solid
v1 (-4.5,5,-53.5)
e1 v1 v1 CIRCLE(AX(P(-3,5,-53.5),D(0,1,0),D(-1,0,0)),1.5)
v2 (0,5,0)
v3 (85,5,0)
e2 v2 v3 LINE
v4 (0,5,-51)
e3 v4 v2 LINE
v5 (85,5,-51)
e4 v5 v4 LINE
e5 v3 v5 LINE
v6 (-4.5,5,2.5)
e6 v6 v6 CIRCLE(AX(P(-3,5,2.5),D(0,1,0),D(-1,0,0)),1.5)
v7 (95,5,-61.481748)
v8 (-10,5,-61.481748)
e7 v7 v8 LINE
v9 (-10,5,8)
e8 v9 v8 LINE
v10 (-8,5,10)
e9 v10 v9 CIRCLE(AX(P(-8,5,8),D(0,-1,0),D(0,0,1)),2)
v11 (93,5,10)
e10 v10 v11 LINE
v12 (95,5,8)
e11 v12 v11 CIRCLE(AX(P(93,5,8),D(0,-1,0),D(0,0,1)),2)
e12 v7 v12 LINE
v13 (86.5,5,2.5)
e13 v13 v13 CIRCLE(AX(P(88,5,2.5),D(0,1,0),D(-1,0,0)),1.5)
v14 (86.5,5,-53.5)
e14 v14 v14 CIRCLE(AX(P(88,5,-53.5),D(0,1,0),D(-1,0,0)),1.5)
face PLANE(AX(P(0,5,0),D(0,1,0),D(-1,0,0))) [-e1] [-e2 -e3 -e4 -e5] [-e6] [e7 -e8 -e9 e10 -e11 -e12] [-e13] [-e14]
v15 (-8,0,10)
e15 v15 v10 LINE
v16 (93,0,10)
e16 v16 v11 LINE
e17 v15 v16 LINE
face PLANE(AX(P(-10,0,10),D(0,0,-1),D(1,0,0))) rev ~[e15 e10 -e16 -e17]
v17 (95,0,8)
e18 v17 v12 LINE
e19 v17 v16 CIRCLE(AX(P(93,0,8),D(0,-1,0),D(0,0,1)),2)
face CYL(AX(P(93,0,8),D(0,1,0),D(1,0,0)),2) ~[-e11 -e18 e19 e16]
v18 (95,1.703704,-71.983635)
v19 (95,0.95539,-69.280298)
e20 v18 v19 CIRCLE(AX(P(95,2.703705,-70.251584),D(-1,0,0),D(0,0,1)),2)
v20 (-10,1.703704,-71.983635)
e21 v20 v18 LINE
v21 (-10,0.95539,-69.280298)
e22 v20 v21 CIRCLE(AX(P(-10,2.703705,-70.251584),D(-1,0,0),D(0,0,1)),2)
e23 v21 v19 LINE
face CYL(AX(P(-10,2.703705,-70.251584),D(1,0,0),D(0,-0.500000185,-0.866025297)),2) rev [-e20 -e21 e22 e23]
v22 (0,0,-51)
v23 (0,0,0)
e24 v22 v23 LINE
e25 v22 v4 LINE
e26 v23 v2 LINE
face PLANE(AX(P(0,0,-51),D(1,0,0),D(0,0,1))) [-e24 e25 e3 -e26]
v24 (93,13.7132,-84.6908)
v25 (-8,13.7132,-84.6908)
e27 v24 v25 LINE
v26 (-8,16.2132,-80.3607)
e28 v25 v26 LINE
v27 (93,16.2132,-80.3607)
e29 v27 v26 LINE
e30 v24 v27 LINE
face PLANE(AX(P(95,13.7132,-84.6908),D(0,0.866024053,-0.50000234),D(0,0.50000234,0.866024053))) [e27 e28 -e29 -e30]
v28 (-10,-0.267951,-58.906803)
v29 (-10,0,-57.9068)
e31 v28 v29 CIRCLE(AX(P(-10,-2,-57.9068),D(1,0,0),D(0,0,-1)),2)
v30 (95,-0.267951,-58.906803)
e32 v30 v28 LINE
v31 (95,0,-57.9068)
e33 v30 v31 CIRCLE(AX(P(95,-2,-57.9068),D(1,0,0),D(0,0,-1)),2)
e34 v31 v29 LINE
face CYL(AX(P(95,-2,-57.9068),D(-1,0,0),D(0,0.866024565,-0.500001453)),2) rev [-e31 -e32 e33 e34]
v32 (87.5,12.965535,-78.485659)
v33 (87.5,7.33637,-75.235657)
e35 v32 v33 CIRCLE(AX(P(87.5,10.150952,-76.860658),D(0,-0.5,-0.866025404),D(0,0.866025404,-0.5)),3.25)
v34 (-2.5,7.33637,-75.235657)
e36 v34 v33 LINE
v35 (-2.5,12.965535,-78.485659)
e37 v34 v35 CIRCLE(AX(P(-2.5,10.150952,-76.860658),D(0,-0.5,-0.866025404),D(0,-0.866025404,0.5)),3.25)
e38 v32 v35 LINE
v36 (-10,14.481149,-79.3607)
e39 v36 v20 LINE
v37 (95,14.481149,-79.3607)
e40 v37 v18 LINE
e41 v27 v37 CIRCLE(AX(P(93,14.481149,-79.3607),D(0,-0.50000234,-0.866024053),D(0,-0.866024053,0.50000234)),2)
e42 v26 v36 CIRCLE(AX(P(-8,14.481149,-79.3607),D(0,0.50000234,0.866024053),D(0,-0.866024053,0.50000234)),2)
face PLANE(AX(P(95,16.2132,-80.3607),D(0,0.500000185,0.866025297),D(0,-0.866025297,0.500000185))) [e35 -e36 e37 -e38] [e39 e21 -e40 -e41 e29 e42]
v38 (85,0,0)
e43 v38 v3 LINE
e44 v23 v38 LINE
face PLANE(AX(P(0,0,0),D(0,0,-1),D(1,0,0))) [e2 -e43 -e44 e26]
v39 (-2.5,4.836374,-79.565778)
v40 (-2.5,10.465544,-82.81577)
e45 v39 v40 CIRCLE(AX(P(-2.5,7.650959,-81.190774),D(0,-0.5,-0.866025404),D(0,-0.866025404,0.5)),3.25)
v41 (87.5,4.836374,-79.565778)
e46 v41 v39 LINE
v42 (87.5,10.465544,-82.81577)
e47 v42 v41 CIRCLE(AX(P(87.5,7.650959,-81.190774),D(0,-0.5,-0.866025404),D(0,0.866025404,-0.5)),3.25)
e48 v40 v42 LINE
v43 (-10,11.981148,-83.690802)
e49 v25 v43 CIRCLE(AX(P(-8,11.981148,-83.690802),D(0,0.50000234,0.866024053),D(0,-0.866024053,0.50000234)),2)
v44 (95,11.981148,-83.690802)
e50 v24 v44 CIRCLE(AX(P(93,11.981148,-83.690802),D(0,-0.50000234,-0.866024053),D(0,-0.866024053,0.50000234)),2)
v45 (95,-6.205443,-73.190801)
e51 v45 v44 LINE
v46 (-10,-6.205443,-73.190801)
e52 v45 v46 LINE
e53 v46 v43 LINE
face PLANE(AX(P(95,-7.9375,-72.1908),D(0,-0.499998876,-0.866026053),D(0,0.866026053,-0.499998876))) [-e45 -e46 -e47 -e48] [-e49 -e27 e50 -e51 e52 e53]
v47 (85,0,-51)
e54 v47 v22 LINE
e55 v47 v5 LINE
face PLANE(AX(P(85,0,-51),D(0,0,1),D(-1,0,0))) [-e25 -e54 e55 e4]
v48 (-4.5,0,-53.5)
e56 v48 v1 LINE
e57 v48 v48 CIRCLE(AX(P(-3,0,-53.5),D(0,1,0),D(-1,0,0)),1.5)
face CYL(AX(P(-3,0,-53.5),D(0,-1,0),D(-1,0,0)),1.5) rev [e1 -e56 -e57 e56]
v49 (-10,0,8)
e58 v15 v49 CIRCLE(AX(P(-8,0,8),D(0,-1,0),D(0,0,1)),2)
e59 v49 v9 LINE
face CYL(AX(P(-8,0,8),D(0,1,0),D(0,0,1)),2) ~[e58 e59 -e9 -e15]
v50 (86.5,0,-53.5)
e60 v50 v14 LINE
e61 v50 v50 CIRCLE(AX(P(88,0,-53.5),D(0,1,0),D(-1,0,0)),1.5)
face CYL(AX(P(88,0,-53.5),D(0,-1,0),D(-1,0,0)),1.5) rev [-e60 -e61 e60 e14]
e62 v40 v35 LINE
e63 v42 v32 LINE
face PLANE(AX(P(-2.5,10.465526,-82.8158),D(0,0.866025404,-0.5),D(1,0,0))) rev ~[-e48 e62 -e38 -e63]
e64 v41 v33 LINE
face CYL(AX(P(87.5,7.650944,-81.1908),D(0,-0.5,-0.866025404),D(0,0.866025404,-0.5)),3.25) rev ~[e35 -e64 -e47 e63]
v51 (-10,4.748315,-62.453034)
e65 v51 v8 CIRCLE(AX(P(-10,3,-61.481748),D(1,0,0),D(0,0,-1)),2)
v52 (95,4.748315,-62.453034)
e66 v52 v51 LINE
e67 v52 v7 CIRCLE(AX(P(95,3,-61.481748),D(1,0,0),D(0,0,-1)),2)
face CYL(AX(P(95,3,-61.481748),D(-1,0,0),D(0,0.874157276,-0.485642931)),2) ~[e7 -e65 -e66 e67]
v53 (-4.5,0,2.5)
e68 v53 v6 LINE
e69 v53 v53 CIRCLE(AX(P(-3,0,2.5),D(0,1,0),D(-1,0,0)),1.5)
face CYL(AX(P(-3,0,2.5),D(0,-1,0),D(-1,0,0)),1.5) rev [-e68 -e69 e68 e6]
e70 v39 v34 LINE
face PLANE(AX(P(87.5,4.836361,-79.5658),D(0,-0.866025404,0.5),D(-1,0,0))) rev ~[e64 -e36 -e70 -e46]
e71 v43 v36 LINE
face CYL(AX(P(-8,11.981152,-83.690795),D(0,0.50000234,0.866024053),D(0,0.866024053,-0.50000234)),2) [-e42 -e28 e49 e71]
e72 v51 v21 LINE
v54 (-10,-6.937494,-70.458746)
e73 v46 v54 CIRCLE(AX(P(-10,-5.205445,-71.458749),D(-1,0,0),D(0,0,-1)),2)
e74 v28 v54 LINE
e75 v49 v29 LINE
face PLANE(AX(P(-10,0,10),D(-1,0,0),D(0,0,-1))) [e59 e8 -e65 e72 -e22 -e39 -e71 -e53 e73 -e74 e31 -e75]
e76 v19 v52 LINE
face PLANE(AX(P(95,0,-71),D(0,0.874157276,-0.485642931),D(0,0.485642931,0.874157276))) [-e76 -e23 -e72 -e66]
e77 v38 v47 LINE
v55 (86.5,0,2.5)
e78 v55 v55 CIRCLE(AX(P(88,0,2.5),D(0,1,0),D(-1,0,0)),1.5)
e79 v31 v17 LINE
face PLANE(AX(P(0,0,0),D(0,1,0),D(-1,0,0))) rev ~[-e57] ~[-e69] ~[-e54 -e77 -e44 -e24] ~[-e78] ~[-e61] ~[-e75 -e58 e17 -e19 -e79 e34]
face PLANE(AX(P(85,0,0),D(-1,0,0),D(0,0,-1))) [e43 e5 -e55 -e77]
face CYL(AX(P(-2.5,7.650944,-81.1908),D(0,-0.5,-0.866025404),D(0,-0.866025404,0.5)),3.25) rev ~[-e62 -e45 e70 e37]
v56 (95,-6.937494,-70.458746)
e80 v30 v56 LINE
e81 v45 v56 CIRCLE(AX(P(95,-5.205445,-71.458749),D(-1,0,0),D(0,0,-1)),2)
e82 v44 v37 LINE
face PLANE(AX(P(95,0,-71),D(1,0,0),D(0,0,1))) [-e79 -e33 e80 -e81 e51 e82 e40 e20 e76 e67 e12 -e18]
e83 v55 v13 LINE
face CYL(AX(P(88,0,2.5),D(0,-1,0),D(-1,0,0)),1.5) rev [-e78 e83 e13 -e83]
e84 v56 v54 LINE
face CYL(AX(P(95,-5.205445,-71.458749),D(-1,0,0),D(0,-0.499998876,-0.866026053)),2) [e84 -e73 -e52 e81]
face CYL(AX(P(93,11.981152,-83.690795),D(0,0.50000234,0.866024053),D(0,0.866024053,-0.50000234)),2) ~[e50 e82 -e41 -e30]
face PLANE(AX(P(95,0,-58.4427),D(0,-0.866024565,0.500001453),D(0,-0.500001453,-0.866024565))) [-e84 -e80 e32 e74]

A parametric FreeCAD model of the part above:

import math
import FreeCAD as App
import Part
import Sketcher
from FreeCAD import Vector
Q = App.Units.Quantity


def edges_at(feature, points):
    """Names of the edges that pass closest to the given points."""
    edges = feature.Shape.Edges
    near = lambda p: min(range(len(edges)), key=lambda i: edges[i].distToShape(Part.Vertex(*p))[0])
    return sorted({f"Edge{near(p) + 1}" for p in points})


def add_polygon(sketch, points):
    """Adds a closed chain of lines whose ends are joined by coincident constraints."""
    first, n = sketch.GeometryCount, len(points)
    for a, b in zip(points, points[1:] + points[:1]):
        sketch.addGeometry(Part.LineSegment(App.Vector(*a, 0), App.Vector(*b, 0)), False)
    for i in range(n):
        sketch.addConstraint(Sketcher.Constraint("Coincident", first + i, 2, first + (i + 1) % n, 1))

doc = App.newDocument("Part")
body = doc.addObject("PartDesign::Body", "Body")

sketch1 = body.newObject("Sketcher::SketchObject", "Sketch")
sketch1.AttachmentSupport = (doc.getObject("XZ_Plane"), [""])
sketch1.MapMode = "FlatFace"
add_polygon(sketch1, [(95, -71), (-10, -71), (-10, 10), (95, 10)])
sketch1.addGeometry(Part.Circle(Vector(88, -53.5, 0), Vector(0, 0, 1), 1.5), False)
sketch1.addGeometry(Part.Circle(Vector(-3, -53.5, 0), Vector(0, 0, 1), 1.5), False)
sketch1.addGeometry(Part.Circle(Vector(88, 2.5, 0), Vector(0, 0, 1), 1.5), False)
add_polygon(sketch1, [(85, 0), (0, 0), (0, -51), (85, -51)])
sketch1.addGeometry(Part.Circle(Vector(-3, 2.5, 0), Vector(0, 0, 1), 1.5), False)
sketch1.addConstraint([
    Sketcher.Constraint("Horizontal", 0),
    Sketcher.Constraint("Vertical", 1),
    Sketcher.Constraint("Horizontal", 2),
    Sketcher.Constraint("Vertical", 3),
    Sketcher.Constraint("Horizontal", 7),
    Sketcher.Constraint("Vertical", 8),
    Sketcher.Constraint("Horizontal", 9),
    Sketcher.Constraint("Vertical", 10),
    Sketcher.Constraint("Coincident", 7, 2, -1, 1),
    Sketcher.Constraint("Equal", 4, 5),
    Sketcher.Constraint("Equal", 5, 6),
    Sketcher.Constraint("Equal", 6, 11),
    Sketcher.Constraint("Horizontal", 4, 3, 5, 3),
    Sketcher.Constraint("Horizontal", 6, 3, 11, 3),
    Sketcher.Constraint("Vertical", 4, 3, 6, 3),
    Sketcher.Constraint("Vertical", 5, 3, 11, 3),
    Sketcher.Constraint("Diameter", 4, Q("3 mm")),
    Sketcher.Constraint("DistanceX", 7, 2, 7, 1, Q("85 mm")),
    Sketcher.Constraint("DistanceY", 8, 2, 8, 1, Q("51 mm")),
    Sketcher.Constraint("DistanceX", 5, 3, -1, 1, Q("3 mm")),
    Sketcher.Constraint("DistanceX", 0, 2, -1, 1, Q("10 mm")),
    Sketcher.Constraint("DistanceY", -1, 1, 1, 2, Q("10 mm")),
    Sketcher.Constraint("DistanceY", 0, 2, 8, 2, Q("20 mm")),
    Sketcher.Constraint("DistanceX", 9, 2, 4, 3, Q("3 mm")),
    Sketcher.Constraint("DistanceX", 9, 2, 3, 2, Q("10 mm")),
    Sketcher.Constraint("DistanceY", -1, 1, 6, 3, Q("2.5 mm")),
    Sketcher.Constraint("DistanceY", 5, 3, 8, 2, Q("2.5 mm")),
])
pad1 = body.newObject("PartDesign::Pad", "Pad")
pad1.Profile = sketch1
pad1.Length = 5
pad1.Reversed = True

sketch2 = body.newObject("Sketcher::SketchObject", "Sketch001")
sketch2.AttachmentSupport = (doc.getObject("YZ_Plane"), [""])
sketch2.MapMode = "FlatFace"
sketch2.AttachmentOffset = App.Placement(Vector(0, 0, 95), App.Rotation())
add_polygon(sketch2, [(0, -58.4), (-7.9, -72.2), (13.7, -84.7), (16.2, -80.4), (0, -71)])
sketch2.addConstraint([
    Sketcher.Constraint("Vertical", 4),
    Sketcher.Constraint("PointOnObject", 3, 2, -2),
    Sketcher.Constraint("Perpendicular", 0, 1),
    Sketcher.Constraint("Perpendicular", 1, 2),
    Sketcher.Constraint("Perpendicular", 2, 3),
    Sketcher.Constraint("Angle", 1, Q("-30 deg")),
    Sketcher.Constraint("Distance", 1, Q("25 mm")),
    Sketcher.Constraint("Distance", 2, Q("5 mm")),
    Sketcher.Constraint("DistanceY", 3, 2, -1, 1, Q("71 mm")),
    Sketcher.Constraint("Distance", 0, Q("15.875 mm")),
])
pad2 = body.newObject("PartDesign::Pad", "Pad001")
pad2.Profile = sketch2
pad2.Length = 105
pad2.Reversed = True

sketch3 = body.newObject("Sketcher::SketchObject", "Sketch002")
sketch3.Placement = App.Placement(Vector(95, -32.5167, -58), App.Rotation(Vector(-1, 0, 0), Vector(0, 0.866025404, -0.5), Vector(0, -0.5, -0.866025404), "ZXY"))
sketch3.addGeometry([
    Part.ArcOfCircle(Part.Circle(Vector(7.5, 46.4, 0), Vector(0, 0, 1), 3.2), math.radians(90), math.radians(270)),
    Part.LineSegment(Vector(7.5, 43.1, 0), Vector(97.5, 43.1, 0)),
    Part.ArcOfCircle(Part.Circle(Vector(97.5, 46.4, 0), Vector(0, 0, 1), 3.2), math.radians(-90), math.radians(90)),
    Part.LineSegment(Vector(97.5, 49.6, 0), Vector(7.5, 49.6, 0)),
], False)
sketch3.addConstraint([
    Sketcher.Constraint("Tangent", 0, 2, 1, 1),
    Sketcher.Constraint("Tangent", 1, 2, 2, 1),
    Sketcher.Constraint("Tangent", 2, 2, 3, 1),
    Sketcher.Constraint("Tangent", 3, 2, 0, 1),
    Sketcher.Constraint("Horizontal", 1),
    Sketcher.Constraint("Horizontal", 3),
    Sketcher.Constraint("DistanceX", 1, 1, 1, 2, Q("90 mm")),
    Sketcher.Constraint("Radius", 0, Q("3.25 mm")),
    Sketcher.Constraint("DistanceX", -1, 1, 0, 3, Q("7.5 mm")),
    Sketcher.Constraint("DistanceY", -1, 1, 0, 3, Q("46.3816 mm")),
])
pocket1 = body.newObject("PartDesign::Pocket", "Pocket")
pocket1.Profile = sketch3
pocket1.Type = "ThroughAll"

sketch4 = body.newObject("Sketcher::SketchObject", "Sketch003")
sketch4.AttachmentSupport = (doc.getObject("YZ_Plane"), [""])
sketch4.MapMode = "FlatFace"
sketch4.AttachmentOffset = App.Placement(Vector(0, 0, 95), App.Rotation())
add_polygon(sketch4, [(5, -62), (0, -71), (5, -71)])
sketch4.addConstraint([
    Sketcher.Constraint("Horizontal", 1),
    Sketcher.Constraint("Vertical", 2),
    Sketcher.Constraint("PointOnObject", 0, 2, -2),
    Sketcher.Constraint("DistanceY", 2, 1, 2, 2, Q("9 mm")),
    Sketcher.Constraint("DistanceX", 1, 1, 1, 2, Q("5 mm")),
    Sketcher.Constraint("DistanceY", 0, 2, -1, 1, Q("71 mm")),
])
pocket2 = body.newObject("PartDesign::Pocket", "Pocket001")
pocket2.Profile = sketch4
pocket2.Type = "ThroughAll"
doc.recompute()

fillet = body.newObject("PartDesign::Fillet", "Fillet")
fillet.Base = (pocket2, edges_at(pocket2, [(-10, 14.963, -82.526), (95, 14.963, -82.526), (42.5, 0, -71)]))
fillet.Radius = 2
doc.recompute()

fillet2 = body.newObject("PartDesign::Fillet", "Fillet001")
fillet2.Base = (fillet, edges_at(fillet, [(42.5, -7.938, -72.191)]))
fillet2.Radius = 2
doc.recompute()

fillet3 = body.newObject("PartDesign::Fillet", "Fillet002")
fillet3.Base = (fillet2, edges_at(fillet2, [(42.5, 5, -62), (42.5, 0, -58.443)]))
fillet3.Radius = 2
doc.recompute()

fillet4 = body.newObject("PartDesign::Fillet", "Fillet003")
fillet4.Base = (fillet3, edges_at(fillet3, [(-10, 2.5, 10), (95, 2.5, 10)]))
fillet4.Radius = 2

doc.recompute()
